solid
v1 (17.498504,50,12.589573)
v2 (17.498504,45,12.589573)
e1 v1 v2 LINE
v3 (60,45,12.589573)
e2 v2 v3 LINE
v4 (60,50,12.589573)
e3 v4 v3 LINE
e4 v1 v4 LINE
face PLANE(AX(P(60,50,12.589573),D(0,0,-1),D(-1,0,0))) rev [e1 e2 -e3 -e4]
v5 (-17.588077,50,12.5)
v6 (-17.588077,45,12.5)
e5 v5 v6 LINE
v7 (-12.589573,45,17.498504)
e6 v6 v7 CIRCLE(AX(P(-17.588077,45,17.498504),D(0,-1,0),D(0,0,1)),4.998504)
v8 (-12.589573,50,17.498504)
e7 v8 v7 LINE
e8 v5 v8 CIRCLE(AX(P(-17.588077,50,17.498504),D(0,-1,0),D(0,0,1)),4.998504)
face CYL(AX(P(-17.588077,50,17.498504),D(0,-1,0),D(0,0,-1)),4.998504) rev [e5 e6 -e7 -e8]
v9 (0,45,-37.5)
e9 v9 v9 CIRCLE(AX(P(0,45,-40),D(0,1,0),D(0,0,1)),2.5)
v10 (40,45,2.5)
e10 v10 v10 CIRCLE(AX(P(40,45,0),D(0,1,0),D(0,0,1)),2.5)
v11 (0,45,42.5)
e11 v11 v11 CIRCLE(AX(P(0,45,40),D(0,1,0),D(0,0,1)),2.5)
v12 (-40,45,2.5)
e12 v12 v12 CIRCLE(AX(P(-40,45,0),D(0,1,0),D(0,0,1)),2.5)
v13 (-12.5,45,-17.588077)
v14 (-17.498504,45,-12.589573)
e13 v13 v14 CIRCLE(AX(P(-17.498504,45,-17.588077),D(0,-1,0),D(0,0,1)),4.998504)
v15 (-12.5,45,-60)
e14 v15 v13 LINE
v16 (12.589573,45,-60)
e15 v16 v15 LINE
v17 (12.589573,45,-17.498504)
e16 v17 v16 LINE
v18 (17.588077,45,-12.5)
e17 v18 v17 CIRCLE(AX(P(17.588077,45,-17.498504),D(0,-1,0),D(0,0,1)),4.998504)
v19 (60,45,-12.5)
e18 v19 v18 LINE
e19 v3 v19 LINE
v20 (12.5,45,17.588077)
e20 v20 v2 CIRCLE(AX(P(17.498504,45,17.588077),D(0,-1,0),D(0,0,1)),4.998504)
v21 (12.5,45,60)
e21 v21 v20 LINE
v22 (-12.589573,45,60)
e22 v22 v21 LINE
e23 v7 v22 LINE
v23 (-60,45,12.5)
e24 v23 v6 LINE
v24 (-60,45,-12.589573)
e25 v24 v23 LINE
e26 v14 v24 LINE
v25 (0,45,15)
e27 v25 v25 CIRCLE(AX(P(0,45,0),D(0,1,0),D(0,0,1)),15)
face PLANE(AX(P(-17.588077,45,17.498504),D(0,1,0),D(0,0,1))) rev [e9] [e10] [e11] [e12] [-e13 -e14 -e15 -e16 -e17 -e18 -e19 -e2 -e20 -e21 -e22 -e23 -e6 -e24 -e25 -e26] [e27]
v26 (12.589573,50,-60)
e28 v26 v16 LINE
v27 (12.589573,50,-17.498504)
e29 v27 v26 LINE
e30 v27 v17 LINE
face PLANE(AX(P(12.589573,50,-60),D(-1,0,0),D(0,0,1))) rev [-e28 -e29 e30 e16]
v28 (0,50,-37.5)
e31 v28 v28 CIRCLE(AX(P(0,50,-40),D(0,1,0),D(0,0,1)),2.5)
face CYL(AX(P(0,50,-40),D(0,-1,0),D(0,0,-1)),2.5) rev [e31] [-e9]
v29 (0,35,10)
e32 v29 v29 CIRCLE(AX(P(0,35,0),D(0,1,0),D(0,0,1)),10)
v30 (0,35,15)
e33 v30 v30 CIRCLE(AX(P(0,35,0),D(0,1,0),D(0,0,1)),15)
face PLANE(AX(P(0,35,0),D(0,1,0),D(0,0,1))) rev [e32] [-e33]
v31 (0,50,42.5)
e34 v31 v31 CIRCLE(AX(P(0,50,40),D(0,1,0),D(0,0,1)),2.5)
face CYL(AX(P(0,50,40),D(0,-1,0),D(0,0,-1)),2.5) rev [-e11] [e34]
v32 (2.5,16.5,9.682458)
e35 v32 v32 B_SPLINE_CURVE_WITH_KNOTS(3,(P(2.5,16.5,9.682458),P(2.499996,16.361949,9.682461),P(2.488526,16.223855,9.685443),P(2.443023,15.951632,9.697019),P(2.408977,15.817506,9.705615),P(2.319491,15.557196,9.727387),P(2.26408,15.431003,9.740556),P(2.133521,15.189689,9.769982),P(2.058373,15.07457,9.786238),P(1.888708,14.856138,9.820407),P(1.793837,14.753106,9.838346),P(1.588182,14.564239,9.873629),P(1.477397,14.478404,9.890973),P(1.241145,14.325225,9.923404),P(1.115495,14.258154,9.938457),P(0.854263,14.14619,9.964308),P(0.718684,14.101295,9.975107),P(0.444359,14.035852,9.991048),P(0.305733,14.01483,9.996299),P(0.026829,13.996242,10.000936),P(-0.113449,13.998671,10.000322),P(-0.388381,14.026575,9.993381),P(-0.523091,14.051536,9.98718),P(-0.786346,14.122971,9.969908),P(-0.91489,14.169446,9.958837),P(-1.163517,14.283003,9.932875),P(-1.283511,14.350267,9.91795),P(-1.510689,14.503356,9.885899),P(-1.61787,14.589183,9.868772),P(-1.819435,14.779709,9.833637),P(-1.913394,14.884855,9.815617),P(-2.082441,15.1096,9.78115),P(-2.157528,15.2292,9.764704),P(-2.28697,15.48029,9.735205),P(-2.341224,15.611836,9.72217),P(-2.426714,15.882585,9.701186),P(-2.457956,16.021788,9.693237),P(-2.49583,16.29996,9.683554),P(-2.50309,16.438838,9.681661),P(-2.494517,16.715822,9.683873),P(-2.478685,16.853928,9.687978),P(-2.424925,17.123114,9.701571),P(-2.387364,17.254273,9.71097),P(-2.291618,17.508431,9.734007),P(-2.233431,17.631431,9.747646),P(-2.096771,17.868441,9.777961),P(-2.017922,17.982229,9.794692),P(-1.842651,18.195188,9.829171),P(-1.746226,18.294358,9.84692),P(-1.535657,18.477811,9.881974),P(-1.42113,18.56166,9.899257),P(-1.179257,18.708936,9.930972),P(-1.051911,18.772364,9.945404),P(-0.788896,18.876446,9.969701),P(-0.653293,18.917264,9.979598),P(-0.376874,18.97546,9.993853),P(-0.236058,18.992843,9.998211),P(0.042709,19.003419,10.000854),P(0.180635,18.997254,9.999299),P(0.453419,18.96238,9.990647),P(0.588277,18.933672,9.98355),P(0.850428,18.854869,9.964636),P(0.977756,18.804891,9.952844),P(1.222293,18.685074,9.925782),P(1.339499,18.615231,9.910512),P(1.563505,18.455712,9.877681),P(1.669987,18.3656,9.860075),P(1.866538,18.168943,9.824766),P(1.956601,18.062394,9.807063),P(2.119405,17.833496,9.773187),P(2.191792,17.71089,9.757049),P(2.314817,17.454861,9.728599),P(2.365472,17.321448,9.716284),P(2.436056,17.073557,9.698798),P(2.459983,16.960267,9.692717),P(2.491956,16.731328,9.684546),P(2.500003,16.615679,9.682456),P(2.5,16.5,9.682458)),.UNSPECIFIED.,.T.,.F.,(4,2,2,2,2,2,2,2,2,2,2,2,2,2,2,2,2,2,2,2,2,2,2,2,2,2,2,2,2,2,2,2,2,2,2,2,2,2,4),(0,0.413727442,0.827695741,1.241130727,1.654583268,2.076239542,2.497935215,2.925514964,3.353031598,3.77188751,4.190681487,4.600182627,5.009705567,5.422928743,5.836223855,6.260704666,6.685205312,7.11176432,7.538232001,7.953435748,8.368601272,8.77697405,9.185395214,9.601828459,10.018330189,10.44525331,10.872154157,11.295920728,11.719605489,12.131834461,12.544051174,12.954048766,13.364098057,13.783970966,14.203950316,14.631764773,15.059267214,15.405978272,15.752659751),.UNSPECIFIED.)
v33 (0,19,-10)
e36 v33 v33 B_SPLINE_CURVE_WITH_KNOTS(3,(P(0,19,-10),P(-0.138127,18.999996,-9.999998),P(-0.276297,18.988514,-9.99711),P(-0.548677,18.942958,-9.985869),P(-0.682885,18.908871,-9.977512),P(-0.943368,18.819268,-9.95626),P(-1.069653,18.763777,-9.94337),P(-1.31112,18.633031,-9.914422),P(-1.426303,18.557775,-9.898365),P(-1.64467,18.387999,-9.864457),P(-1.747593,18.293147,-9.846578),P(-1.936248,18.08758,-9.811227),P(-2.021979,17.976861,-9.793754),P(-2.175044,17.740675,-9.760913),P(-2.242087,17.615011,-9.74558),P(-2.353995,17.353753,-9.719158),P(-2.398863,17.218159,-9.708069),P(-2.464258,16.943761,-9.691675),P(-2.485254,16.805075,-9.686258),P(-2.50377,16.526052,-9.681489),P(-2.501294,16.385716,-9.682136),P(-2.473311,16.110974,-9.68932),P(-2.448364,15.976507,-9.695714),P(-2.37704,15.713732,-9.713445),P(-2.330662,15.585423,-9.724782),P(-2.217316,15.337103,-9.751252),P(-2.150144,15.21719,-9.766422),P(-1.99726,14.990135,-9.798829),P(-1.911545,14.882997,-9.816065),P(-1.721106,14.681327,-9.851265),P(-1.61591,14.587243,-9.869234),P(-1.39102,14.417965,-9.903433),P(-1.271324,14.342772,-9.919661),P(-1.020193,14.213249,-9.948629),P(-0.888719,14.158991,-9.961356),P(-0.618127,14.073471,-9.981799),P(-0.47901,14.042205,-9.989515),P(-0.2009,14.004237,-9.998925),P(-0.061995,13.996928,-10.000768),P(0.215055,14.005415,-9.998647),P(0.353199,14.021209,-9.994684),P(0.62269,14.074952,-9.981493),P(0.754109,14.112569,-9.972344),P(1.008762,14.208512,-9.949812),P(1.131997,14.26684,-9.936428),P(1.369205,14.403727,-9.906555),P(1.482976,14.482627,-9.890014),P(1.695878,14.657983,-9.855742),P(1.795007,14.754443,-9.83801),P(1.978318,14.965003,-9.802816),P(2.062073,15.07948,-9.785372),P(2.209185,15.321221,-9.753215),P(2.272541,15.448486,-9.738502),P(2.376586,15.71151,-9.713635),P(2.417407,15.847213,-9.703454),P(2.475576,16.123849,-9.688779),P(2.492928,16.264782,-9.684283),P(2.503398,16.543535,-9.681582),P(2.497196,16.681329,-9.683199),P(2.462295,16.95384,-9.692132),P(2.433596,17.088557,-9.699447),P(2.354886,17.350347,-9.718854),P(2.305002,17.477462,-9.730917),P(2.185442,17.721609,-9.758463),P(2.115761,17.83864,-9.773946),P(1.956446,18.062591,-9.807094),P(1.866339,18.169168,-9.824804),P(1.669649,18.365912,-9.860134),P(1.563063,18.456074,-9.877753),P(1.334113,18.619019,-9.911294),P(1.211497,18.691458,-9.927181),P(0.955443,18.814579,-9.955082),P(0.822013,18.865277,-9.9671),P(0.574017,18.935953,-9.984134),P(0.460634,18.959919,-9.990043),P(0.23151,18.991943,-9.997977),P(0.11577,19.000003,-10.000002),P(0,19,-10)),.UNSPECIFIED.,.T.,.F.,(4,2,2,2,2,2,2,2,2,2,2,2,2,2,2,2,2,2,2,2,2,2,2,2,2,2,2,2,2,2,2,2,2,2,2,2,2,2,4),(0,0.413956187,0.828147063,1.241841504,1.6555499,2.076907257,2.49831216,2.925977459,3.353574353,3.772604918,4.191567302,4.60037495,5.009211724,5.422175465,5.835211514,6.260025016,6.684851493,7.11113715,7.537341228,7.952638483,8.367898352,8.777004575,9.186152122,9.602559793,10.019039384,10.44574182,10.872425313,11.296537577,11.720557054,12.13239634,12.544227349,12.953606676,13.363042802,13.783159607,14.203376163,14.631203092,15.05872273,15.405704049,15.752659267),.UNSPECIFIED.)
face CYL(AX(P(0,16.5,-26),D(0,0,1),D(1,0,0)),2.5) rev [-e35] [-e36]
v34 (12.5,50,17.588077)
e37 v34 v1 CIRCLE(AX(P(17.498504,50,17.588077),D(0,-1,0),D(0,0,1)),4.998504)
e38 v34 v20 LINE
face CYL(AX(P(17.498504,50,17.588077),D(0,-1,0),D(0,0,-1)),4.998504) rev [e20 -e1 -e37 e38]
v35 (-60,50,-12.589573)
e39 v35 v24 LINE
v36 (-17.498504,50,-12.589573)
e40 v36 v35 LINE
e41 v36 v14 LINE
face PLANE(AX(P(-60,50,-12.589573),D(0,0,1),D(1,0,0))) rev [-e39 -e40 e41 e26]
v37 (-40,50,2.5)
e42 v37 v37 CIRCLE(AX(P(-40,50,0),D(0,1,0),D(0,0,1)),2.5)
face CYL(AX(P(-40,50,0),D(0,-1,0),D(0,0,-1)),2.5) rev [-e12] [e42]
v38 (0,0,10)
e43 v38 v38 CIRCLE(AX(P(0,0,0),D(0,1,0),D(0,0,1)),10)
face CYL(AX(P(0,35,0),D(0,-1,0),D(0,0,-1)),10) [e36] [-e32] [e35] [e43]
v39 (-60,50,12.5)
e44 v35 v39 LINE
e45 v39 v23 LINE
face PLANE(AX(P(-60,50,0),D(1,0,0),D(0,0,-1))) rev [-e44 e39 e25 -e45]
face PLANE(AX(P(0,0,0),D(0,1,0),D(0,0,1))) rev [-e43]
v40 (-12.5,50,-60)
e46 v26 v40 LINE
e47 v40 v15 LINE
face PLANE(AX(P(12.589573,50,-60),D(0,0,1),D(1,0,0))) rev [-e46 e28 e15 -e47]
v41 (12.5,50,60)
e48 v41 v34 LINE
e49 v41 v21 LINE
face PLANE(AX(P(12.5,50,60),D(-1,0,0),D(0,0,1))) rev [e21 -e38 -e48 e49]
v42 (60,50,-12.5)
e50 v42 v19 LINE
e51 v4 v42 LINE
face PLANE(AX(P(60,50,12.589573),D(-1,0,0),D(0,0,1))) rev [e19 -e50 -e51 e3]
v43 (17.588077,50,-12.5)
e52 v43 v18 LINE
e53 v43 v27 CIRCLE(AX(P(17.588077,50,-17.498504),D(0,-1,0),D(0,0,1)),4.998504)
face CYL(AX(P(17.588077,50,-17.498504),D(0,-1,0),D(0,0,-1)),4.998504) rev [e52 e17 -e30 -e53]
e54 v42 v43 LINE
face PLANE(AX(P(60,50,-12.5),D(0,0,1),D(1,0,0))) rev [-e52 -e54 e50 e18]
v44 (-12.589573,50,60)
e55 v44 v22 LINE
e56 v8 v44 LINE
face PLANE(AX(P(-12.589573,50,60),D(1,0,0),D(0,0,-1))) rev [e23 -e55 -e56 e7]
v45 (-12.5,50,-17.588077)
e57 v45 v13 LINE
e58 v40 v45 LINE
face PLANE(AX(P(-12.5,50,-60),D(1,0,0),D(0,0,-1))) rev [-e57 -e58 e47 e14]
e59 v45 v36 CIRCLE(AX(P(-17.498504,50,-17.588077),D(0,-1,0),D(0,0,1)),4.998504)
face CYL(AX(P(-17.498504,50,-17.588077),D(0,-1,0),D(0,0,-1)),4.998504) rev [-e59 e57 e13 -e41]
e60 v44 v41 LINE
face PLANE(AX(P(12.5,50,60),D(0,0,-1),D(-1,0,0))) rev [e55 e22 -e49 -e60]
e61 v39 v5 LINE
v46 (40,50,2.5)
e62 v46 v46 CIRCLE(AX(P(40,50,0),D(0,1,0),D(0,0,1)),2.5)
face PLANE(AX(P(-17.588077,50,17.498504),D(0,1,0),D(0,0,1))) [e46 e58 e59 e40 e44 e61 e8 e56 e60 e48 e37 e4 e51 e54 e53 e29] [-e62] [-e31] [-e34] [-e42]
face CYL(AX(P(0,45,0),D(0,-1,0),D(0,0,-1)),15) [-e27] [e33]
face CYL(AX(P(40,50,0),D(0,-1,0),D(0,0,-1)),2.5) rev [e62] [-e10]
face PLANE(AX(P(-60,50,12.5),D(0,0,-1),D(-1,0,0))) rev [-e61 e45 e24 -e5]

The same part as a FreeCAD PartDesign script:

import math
import FreeCAD as App
import Part
import Sketcher

V = App.Vector
Q = App.Units.Quantity

doc = App.newDocument("Part")
body = doc.addObject("PartDesign::Body", "Body")

# Sketch on XZ plane
sketch1 = body.newObject("Sketcher::SketchObject", "Sketch")
sketch1.AttachmentSupport = (doc.getObject("XZ_Plane"), [""])
sketch1.MapMode = "FlatFace"
sketch1.addGeometry(Part.Circle(V(0, 0, 0), V(0, 0, 1), 10), False)
sketch1.addConstraint([
    Sketcher.Constraint("Coincident", 0, 3, -1, 1),
    Sketcher.Constraint("Diameter", 0, Q("20 mm")),
])
pad1 = body.newObject("PartDesign::Pad", "Pad")
pad1.Profile = sketch1
pad1.Length = 35
pad1.Reversed = True

# Sketch on XZ plane
sketch2 = body.newObject("Sketcher::SketchObject", "Sketch001")
sketch2.AttachmentSupport = (doc.getObject("XZ_Plane"), [""])
sketch2.MapMode = "FlatFace"
sketch2.AttachmentOffset = App.Placement(V(0, 0, -35), App.Rotation())
sketch2.addGeometry(Part.Circle(V(0, 0, 0), V(0, 0, 1), 15), False)
sketch2.addConstraint([
    Sketcher.Constraint("Coincident", 0, 3, -1, 1),
    Sketcher.Constraint("Diameter", 0, Q("30 mm")),
])
pad2 = body.newObject("PartDesign::Pad", "Pad001")
pad2.Profile = sketch2
pad2.Length = 10
pad2.Reversed = True

# Sketch on XZ plane
sketch3 = body.newObject("Sketcher::SketchObject", "Sketch002")
sketch3.AttachmentSupport = (doc.getObject("XZ_Plane"), [""])
sketch3.MapMode = "FlatFace"
sketch3.AttachmentOffset = App.Placement(V(0, 0, -45), App.Rotation())
sketch3.addGeometry([
    Part.LineSegment(V(-17.5, -12.6, 0), V(-60, -12.6, 0)),  # 0
    Part.LineSegment(V(-60, -12.6, 0), V(-60, 12.5, 0)),  # 1
    Part.LineSegment(V(-60, 12.5, 0), V(-17.6, 12.5, 0)),  # 2
    Part.ArcOfCircle(Part.Circle(V(-17.6, 17.5, 0), V(0, 0, 1), 5), math.radians(-90), math.radians(0)),  # 3
    Part.LineSegment(V(-12.6, 17.5, 0), V(-12.6, 60, 0)),  # 4
    Part.LineSegment(V(-12.6, 60, 0), V(12.5, 60, 0)),  # 5
    Part.LineSegment(V(12.5, 60, 0), V(12.5, 17.6, 0)),  # 6
    Part.ArcOfCircle(Part.Circle(V(17.5, 17.6, 0), V(0, 0, 1), 5), math.radians(180), math.radians(270)),  # 7
    Part.LineSegment(V(17.5, 12.6, 0), V(60, 12.6, 0)),  # 8
    Part.LineSegment(V(60, 12.6, 0), V(60, -12.5, 0)),  # 9
    Part.LineSegment(V(60, -12.5, 0), V(17.6, -12.5, 0)),  # 10
    Part.ArcOfCircle(Part.Circle(V(17.6, -17.5, 0), V(0, 0, 1), 5), math.radians(90), math.radians(180)),  # 11
    Part.LineSegment(V(12.6, -17.5, 0), V(12.6, -60, 0)),  # 12
    Part.LineSegment(V(12.6, -60, 0), V(-12.5, -60, 0)),  # 13
    Part.LineSegment(V(-12.5, -60, 0), V(-12.5, -17.6, 0)),  # 14
    Part.ArcOfCircle(Part.Circle(V(-17.5, -17.6, 0), V(0, 0, 1), 5), math.radians(0), math.radians(90)),  # 15
    Part.Circle(V(0, 40, 0), V(0, 0, 1), 2.5),  # 16
    Part.Circle(V(40, 0, 0), V(0, 0, 1), 2.5),  # 17
    Part.Circle(V(-40, 0, 0), V(0, 0, 1), 2.5),  # 18
    Part.Circle(V(0, -40, 0), V(0, 0, 1), 2.5),  # 19
], False)
sketch3.addConstraint([
    Sketcher.Constraint("Coincident", 0, 2, 1, 1),
    Sketcher.Constraint("Coincident", 1, 2, 2, 1),
    Sketcher.Constraint("Tangent", 2, 2, 3, 1),
    Sketcher.Constraint("Tangent", 3, 2, 4, 1),
    Sketcher.Constraint("Coincident", 4, 2, 5, 1),
    Sketcher.Constraint("Coincident", 5, 2, 6, 1),
    Sketcher.Constraint("Tangent", 6, 2, 7, 1),
    Sketcher.Constraint("Tangent", 7, 2, 8, 1),
    Sketcher.Constraint("Coincident", 8, 2, 9, 1),
    Sketcher.Constraint("Coincident", 9, 2, 10, 1),
    Sketcher.Constraint("Tangent", 10, 2, 11, 1),
    Sketcher.Constraint("Tangent", 11, 2, 12, 1),
    Sketcher.Constraint("Coincident", 12, 2, 13, 1),
    Sketcher.Constraint("Coincident", 13, 2, 14, 1),
    Sketcher.Constraint("Tangent", 14, 2, 15, 1),
    Sketcher.Constraint("Tangent", 15, 2, 0, 1),
    Sketcher.Constraint("Horizontal", 0),
    Sketcher.Constraint("Vertical", 1),
    Sketcher.Constraint("Horizontal", 2),
    Sketcher.Constraint("Vertical", 4),
    Sketcher.Constraint("Horizontal", 5),
    Sketcher.Constraint("Vertical", 6),
    Sketcher.Constraint("Horizontal", 8),
    Sketcher.Constraint("Vertical", 9),
    Sketcher.Constraint("Horizontal", 10),
    Sketcher.Constraint("Vertical", 12),
    Sketcher.Constraint("Horizontal", 13),
    Sketcher.Constraint("Vertical", 14),
    Sketcher.Constraint("Equal", 3, 7),
    Sketcher.Constraint("Equal", 7, 11),
    Sketcher.Constraint("Equal", 11, 15),
    Sketcher.Constraint("Equal", 16, 17),
    Sketcher.Constraint("Equal", 17, 18),
    Sketcher.Constraint("Equal", 18, 19),
    Sketcher.Constraint("Symmetric", 3, 3, 11, 3, -1, 1),
    Sketcher.Constraint("Symmetric", 7, 3, 15, 3, -1, 1),
    Sketcher.Constraint("Symmetric", 17, 3, 18, 3, -1, 1),
    Sketcher.Constraint("Symmetric", 16, 3, 19, 3, -1, 1),
    Sketcher.Constraint("PointOnObject", 16, 3, -2),
    Sketcher.Constraint("PointOnObject", 17, 3, -1),
    Sketcher.Constraint("Equal", 0, 8),
    Sketcher.Constraint("Equal", 13, 1),
    Sketcher.Constraint("Equal", 8, 4),
    Sketcher.Constraint("Equal", 10, 6),
    Sketcher.Constraint("Equal", 4, 12),
    Sketcher.Constraint("Diameter", 16, Q("5 mm")),
    Sketcher.Constraint("DistanceY", -1, 1, 16, 3, Q("40 mm")),
    Sketcher.Constraint("DistanceX", -1, 1, 17, 3, Q("40 mm")),
    Sketcher.Constraint("DistanceX", 0, 2, -1, 1, Q("60 mm")),
    Sketcher.Constraint("DistanceY", -1, 1, 1, 2, Q("12.5 mm")),
    Sketcher.Constraint("Radius", 3, Q("4.998504 mm")),
    Sketcher.Constraint("DistanceX", 2, 1, 2, 2, Q("42.411923 mm")),
])
pad3 = body.newObject("PartDesign::Pad", "Pad002")
pad3.Profile = sketch3
pad3.Length = 5
pad3.Reversed = True

# Sketch on XY plane
sketch4 = body.newObject("Sketcher::SketchObject", "Sketch003")
sketch4.AttachmentSupport = (doc.getObject("XY_Plane"), [""])
sketch4.MapMode = "FlatFace"
sketch4.addGeometry(Part.Circle(V(0, 16.5, 0), V(0, 0, 1), 2.5), False)
sketch4.addConstraint([
    Sketcher.Constraint("PointOnObject", 0, 3, -2),
    Sketcher.Constraint("Diameter", 0, Q("5 mm")),
    Sketcher.Constraint("DistanceY", -1, 1, 0, 3, Q("16.5 mm")),
])
pocket1 = body.newObject("PartDesign::Pocket", "Pocket")
pocket1.Profile = sketch4
pocket1.Type = "ThroughAll"
pocket1.Midplane = True

doc.recompute()
